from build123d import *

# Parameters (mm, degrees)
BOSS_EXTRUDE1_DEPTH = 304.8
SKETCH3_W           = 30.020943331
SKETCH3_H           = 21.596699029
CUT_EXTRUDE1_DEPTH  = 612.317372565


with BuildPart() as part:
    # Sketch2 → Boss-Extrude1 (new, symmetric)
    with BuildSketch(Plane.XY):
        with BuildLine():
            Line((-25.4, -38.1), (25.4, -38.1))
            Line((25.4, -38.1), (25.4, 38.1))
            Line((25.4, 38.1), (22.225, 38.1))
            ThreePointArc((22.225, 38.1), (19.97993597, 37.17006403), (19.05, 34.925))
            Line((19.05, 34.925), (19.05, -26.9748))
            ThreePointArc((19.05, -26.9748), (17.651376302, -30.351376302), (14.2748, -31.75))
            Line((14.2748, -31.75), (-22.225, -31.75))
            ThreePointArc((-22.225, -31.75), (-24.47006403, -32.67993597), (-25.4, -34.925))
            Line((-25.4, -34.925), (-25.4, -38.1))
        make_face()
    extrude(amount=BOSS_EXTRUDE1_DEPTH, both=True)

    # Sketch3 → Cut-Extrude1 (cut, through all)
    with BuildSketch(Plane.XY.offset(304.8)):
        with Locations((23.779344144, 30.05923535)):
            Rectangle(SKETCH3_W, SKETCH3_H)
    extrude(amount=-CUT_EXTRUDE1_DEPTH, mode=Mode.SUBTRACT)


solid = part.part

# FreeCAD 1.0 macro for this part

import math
import FreeCAD as App
import Part
import Sketcher

V = App.Vector
Q = App.Units.Quantity


def add_polygon(sketch, points):
    """Adds a closed chain of lines whose ends are joined by coincident constraints."""
    first, n = sketch.GeometryCount, len(points)
    for a, b in zip(points, points[1:] + points[:1]):
        sketch.addGeometry(Part.LineSegment(App.Vector(*a, 0), App.Vector(*b, 0)), False)
    for i in range(n):
        sketch.addConstraint(Sketcher.Constraint("Coincident", first + i, 2, first + (i + 1) % n, 1))

doc = App.newDocument("Part")
params = doc.addObject("Spreadsheet::Sheet", "Params")
for row, (alias, value) in enumerate([
    ("sketch1_width", "2 in"),
    ("sketch1_height", "3 in"),
    ("sketch1_radius", "0.125 in"),
    ("sketch1_radius2", "0.188 in"),
    ("pad1_length", "24 in"),
], start=1):
    params.set(f"A{row}", alias)
    params.set(f"B{row}", "=" + value)
    params.setAlias(f"B{row}", alias)

body = doc.addObject("PartDesign::Body", "Body")

sketch1 = doc.addObject("Sketcher::SketchObject", "Sketch")
body.addObject(sketch1)
sketch1.AttachmentSupport = (doc.XY_Plane, [""])
sketch1.MapMode = "FlatFace"
sketch1.addGeometry(Part.LineSegment(V(-25.4, -38.1, 0), V(25.4, -38.1, 0)), False)
sketch1.addGeometry(Part.LineSegment(V(25.4, -38.1, 0), V(25.4, 38.1, 0)), False)
sketch1.addGeometry(Part.LineSegment(V(25.4, 38.1, 0), V(22.2, 38.1, 0)), False)
sketch1.addGeometry(Part.ArcOfCircle(Part.Circle(V(22.2, 34.9, 0), V(0, 0, 1), 3.2), math.radians(90), math.radians(180)), False)
sketch1.addGeometry(Part.LineSegment(V(19.1, 34.9, 0), V(19.1, -27, 0)), False)
sketch1.addGeometry(Part.ArcOfCircle(Part.Circle(V(14.3, -27, 0), V(0, 0, 1), 4.8), math.radians(-90), math.radians(0)), False)
sketch1.addGeometry(Part.LineSegment(V(14.3, -31.8, 0), V(-22.2, -31.8, 0)), False)
sketch1.addGeometry(Part.ArcOfCircle(Part.Circle(V(-22.2, -34.9, 0), V(0, 0, 1), 3.2), math.radians(90), math.radians(180)), False)
sketch1.addGeometry(Part.LineSegment(V(-25.4, -34.9, 0), V(-25.4, -38.1, 0)), False)
sketch1.addConstraint(Sketcher.Constraint("Coincident", 0, 2, 1, 1))
sketch1.addConstraint(Sketcher.Constraint("Coincident", 1, 2, 2, 1))
sketch1.addConstraint(Sketcher.Constraint("Tangent", 2, 2, 3, 1))
sketch1.addConstraint(Sketcher.Constraint("Tangent", 3, 2, 4, 1))
sketch1.addConstraint(Sketcher.Constraint("Tangent", 4, 2, 5, 2))
sketch1.addConstraint(Sketcher.Constraint("Tangent", 5, 1, 6, 1))
sketch1.addConstraint(Sketcher.Constraint("Tangent", 6, 2, 7, 1))
sketch1.addConstraint(Sketcher.Constraint("Tangent", 7, 2, 8, 1))
sketch1.addConstraint(Sketcher.Constraint("Coincident", 8, 2, 0, 1))
sketch1.addConstraint(Sketcher.Constraint("Horizontal", 0))
sketch1.addConstraint(Sketcher.Constraint("Vertical", 1))
sketch1.addConstraint(Sketcher.Constraint("Horizontal", 2))
sketch1.addConstraint(Sketcher.Constraint("Vertical", 4))
sketch1.addConstraint(Sketcher.Constraint("Horizontal", 6))
sketch1.addConstraint(Sketcher.Constraint("Vertical", 8))
sketch1.addConstraint(Sketcher.Constraint("Equal", 3, 7))
sketch1.addConstraint(Sketcher.Constraint("Symmetric", 3, 3, 7, 3, -1, 1))
sketch1.addConstraint(Sketcher.Constraint("Symmetric", 1, 2, 8, 2, -1, 1))
sketch1.addConstraint(Sketcher.Constraint("DistanceX", 0, 1, 0, 2, Q("2 in")))
sketch1.addConstraint(Sketcher.Constraint("DistanceY", 1, 1, 1, 2, Q("3 in")))
sketch1.addConstraint(Sketcher.Constraint("Radius", 3, Q("0.125 in")))
sketch1.addConstraint(Sketcher.Constraint("Radius", 5, Q("0.188 in")))
sketch1.setExpression("Constraints[18]", "Params.sketch1_width")
sketch1.setExpression("Constraints[19]", "Params.sketch1_height")
sketch1.setExpression("Constraints[20]", "Params.sketch1_radius")
sketch1.setExpression("Constraints[21]", "Params.sketch1_radius2")
pad1 = doc.addObject("PartDesign::Pad", "Pad")
body.addObject(pad1)
pad1.Profile = sketch1
pad1.setExpression("Length", "Params.pad1_length")
pad1.Midplane = True

sketch2 = doc.addObject("Sketcher::SketchObject", "Sketch001")
body.addObject(sketch2)
sketch2.AttachmentSupport = (doc.XY_Plane, [""])
sketch2.MapMode = "FlatFace"
sketch2.AttachmentOffset = App.Placement(V(0, 0, 12 * 25.4), App.Rotation())
add_polygon(sketch2, [(9, 41), (9, 19), (39, 19), (39, 41)])
sketch2.addConstraint(Sketcher.Constraint("Vertical", 0))
sketch2.addConstraint(Sketcher.Constraint("Horizontal", 1))
sketch2.addConstraint(Sketcher.Constraint("Vertical", 2))
sketch2.addConstraint(Sketcher.Constraint("Horizontal", 3))
sketch2.addConstraint(Sketcher.Constraint("DistanceY", 0, 2, 0, 1, Q("21.596699 mm")))
sketch2.addConstraint(Sketcher.Constraint("DistanceX", 1, 1, 1, 2, Q("30.020943 mm")))
sketch2.addConstraint(Sketcher.Constraint("DistanceX", -1, 1, 0, 2, Q("8.768872 mm")))
sketch2.addConstraint(Sketcher.Constraint("DistanceY", -1, 1, 0, 2, Q("19.260886 mm")))
pocket1 = doc.addObject("PartDesign::Pocket", "Pocket")
body.addObject(pocket1)
pocket1.Profile = sketch2
pocket1.Type = "ThroughAll"

doc.recompute()
